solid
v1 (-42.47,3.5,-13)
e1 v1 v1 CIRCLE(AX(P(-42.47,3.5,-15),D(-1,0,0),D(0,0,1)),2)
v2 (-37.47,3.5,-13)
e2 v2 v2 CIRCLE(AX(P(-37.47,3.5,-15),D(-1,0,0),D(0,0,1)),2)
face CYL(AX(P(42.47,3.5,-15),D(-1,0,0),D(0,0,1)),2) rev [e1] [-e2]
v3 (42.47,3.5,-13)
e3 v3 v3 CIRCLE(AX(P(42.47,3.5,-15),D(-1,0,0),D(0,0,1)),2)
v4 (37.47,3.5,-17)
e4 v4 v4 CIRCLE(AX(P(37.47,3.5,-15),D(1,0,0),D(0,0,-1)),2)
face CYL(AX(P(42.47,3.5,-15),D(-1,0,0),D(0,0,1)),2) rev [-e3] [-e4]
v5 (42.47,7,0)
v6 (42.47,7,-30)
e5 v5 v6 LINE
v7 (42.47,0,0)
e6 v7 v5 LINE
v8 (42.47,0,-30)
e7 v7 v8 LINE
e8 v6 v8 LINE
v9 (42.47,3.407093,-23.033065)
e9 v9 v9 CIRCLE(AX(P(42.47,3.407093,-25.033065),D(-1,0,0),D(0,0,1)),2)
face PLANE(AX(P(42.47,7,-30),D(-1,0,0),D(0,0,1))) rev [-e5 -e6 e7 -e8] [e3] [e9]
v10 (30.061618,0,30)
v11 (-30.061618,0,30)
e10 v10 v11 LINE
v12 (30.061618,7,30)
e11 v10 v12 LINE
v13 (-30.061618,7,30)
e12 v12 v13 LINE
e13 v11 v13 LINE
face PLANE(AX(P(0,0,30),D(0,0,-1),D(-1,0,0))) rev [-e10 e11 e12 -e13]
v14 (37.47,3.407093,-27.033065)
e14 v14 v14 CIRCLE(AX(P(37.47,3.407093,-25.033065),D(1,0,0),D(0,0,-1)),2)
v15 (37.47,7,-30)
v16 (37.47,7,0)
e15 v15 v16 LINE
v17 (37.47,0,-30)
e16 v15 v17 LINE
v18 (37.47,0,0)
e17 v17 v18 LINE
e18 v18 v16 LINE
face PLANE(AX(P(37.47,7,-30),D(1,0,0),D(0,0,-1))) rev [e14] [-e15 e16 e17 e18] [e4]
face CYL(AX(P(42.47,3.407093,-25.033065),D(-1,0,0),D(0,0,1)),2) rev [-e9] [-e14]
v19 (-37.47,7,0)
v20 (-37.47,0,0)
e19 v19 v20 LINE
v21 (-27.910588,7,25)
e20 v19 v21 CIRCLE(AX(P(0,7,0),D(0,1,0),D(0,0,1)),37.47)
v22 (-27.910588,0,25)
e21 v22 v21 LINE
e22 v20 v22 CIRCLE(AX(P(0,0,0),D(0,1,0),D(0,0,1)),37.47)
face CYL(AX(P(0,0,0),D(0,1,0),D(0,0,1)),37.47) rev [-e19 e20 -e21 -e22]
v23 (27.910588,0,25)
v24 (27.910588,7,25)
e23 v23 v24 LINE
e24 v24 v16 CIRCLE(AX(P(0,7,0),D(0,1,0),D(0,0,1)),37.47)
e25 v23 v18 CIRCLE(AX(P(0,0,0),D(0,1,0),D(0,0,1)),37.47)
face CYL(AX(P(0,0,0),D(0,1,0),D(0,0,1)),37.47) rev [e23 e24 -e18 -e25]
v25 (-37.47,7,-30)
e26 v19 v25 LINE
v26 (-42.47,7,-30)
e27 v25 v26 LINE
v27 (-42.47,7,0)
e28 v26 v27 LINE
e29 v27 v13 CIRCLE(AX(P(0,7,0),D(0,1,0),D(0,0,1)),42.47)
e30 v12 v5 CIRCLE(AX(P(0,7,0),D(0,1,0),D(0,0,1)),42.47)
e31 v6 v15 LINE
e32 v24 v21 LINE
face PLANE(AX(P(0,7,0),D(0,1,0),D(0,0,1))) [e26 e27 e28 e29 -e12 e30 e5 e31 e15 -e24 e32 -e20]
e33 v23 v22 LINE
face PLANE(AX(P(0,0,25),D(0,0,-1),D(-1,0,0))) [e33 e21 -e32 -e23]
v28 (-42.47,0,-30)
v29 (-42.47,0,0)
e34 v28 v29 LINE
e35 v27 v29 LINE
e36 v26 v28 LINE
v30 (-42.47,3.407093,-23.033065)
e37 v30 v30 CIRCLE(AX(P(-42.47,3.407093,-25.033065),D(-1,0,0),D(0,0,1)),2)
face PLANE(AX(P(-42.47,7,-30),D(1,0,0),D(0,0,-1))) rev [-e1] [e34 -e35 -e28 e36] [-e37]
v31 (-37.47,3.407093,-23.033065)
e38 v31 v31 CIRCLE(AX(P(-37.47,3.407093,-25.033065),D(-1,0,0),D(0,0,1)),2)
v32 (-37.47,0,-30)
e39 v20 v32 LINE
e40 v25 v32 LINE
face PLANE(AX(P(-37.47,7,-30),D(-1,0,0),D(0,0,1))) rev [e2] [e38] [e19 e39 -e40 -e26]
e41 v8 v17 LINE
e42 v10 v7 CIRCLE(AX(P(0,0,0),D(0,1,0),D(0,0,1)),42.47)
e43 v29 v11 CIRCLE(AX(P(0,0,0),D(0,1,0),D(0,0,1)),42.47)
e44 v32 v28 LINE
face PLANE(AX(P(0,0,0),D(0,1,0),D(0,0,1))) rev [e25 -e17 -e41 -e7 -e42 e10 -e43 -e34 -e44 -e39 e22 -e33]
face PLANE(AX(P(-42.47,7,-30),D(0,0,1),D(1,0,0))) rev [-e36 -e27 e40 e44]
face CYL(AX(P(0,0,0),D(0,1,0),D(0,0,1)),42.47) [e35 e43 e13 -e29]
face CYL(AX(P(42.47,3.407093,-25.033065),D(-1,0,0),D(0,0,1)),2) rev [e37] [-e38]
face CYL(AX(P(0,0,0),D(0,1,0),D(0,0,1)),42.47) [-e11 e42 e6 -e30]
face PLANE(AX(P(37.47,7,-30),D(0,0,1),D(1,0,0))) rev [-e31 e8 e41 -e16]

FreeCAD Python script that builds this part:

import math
import FreeCAD as App
import Part
import Sketcher

doc = App.newDocument("Part")
body = doc.addObject("PartDesign::Body", "Body")

sketch1 = body.newObject("Sketcher::SketchObject", "Sketch")
sketch1.AttachmentSupport = (doc.getObject("XZ_Plane"), [""])
sketch1.MapMode = "FlatFace"
sketch1.addGeometry([
    Part.LineSegment(App.Vector(-42, -30, 0), App.Vector(-42, 0, 0)),
    Part.LineSegment(App.Vector(-42, 0, 0), App.Vector(-37, 0, 0)),
    Part.LineSegment(App.Vector(-37, 0, 0), App.Vector(-37, -30, 0)),
    Part.LineSegment(App.Vector(-37, -30, 0), App.Vector(-42, -30, 0)),
], False)
sketch1.addConstraint([
    Sketcher.Constraint("Coincident", 0, 2, 1, 1),
    Sketcher.Constraint("Coincident", 1, 2, 2, 1),
    Sketcher.Constraint("Coincident", 2, 2, 3, 1),
    Sketcher.Constraint("Coincident", 3, 2, 0, 1),
    Sketcher.Constraint("Vertical", 0),
    Sketcher.Constraint("Horizontal", 1),
    Sketcher.Constraint("Vertical", 2),
    Sketcher.Constraint("Horizontal", 3),
    Sketcher.Constraint("PointOnObject", 0, 2, -1),
    Sketcher.Constraint("DistanceX", 1, 1, 1, 2, 5.0),
    Sketcher.Constraint("DistanceY", 0, 1, 0, 2, 30.0),
    Sketcher.Constraint("DistanceX", 0, 2, -1, 1, 42.47),
])
pad1 = body.newObject("PartDesign::Pad", "Pad")
pad1.Profile = sketch1
pad1.Length = 7
pad1.Reversed = True
body2 = doc.addObject("PartDesign::Body", "Body001")

sketch2 = body2.newObject("Sketcher::SketchObject", "Sketch001")
sketch2.AttachmentSupport = (doc.getObject("XZ_Plane001"), [""])
sketch2.MapMode = "FlatFace"
sketch2.addGeometry([
    Part.LineSegment(App.Vector(37, -30, 0), App.Vector(37, 0, 0)),
    Part.LineSegment(App.Vector(37, 0, 0), App.Vector(42, 0, 0)),
    Part.LineSegment(App.Vector(42, 0, 0), App.Vector(42, -30, 0)),
    Part.LineSegment(App.Vector(42, -30, 0), App.Vector(37, -30, 0)),
], False)
sketch2.addConstraint([
    Sketcher.Constraint("Coincident", 0, 2, 1, 1),
    Sketcher.Constraint("Coincident", 1, 2, 2, 1),
    Sketcher.Constraint("Coincident", 2, 2, 3, 1),
    Sketcher.Constraint("Coincident", 3, 2, 0, 1),
    Sketcher.Constraint("Vertical", 0),
    Sketcher.Constraint("Horizontal", 1),
    Sketcher.Constraint("Vertical", 2),
    Sketcher.Constraint("Horizontal", 3),
    Sketcher.Constraint("PointOnObject", 0, 2, -1),
    Sketcher.Constraint("DistanceX", 1, 1, 1, 2, 5.0),
    Sketcher.Constraint("DistanceY", 0, 1, 0, 2, 30.0),
    Sketcher.Constraint("DistanceX", -1, 1, 0, 2, 37.47),
])
pad2 = body2.newObject("PartDesign::Pad", "Pad001")
pad2.Profile = sketch2
pad2.Length = 7
pad2.Reversed = True
body3 = doc.addObject("PartDesign::Body", "Body002")
body3.AllowCompound = True

sketch3 = body3.newObject("Sketcher::SketchObject", "Sketch002")
sketch3.AttachmentSupport = (doc.getObject("YZ_Plane002"), [""])
sketch3.MapMode = "FlatFace"
sketch3.AttachmentOffset = App.Placement(App.Vector(0, 0, -42.47), App.Rotation())
sketch3.addGeometry([
    Part.Circle(App.Vector(3.5, -15, 0), App.Vector(0, 0, 1), 2),
    Part.Circle(App.Vector(3.4, -25, 0), App.Vector(0, 0, 1), 2),
], False)
sketch3.addConstraint([
    Sketcher.Constraint("Equal", 0, 1),
    Sketcher.Constraint("Diameter", 0, 4.0),
    Sketcher.Constraint("DistanceY", 0, 3, -1, 1, 15.0),
    Sketcher.Constraint("DistanceX", -1, 1, 0, 3, 3.5),
    Sketcher.Constraint("DistanceX", -1, 1, 1, 3, 3.407093),
    Sketcher.Constraint("DistanceY", 1, 3, -1, 1, 25.033065),
])
pad3 = body3.newObject("PartDesign::Pad", "Pad002")
pad3.Profile = sketch3
pad3.Length = 91.353769
doc.recompute()

body4 = doc.addObject("PartDesign::Body", "Body003")
body4.BaseFeature = body3
boolean = body.newObject("PartDesign::Boolean", "Boolean")
boolean.Type = "Cut"
boolean.addObjects([body4])
doc.recompute()

boolean2 = body2.newObject("PartDesign::Boolean", "Boolean001")
boolean2.Type = "Cut"
boolean2.addObjects([body3])
body.AllowCompound = True
doc.recompute()

boolean3 = body.newObject("PartDesign::Boolean", "Boolean002")
boolean3.Type = "Fuse"
boolean3.addObjects([body2])

sketch4 = body.newObject("Sketcher::SketchObject", "Sketch003")
sketch4.AttachmentSupport = (doc.getObject("XZ_Plane"), [""])
sketch4.MapMode = "FlatFace"
sketch4.AttachmentOffset = App.Placement(App.Vector(0, 0, -7), App.Rotation())
sketch4.addGeometry([
    Part.LineSegment(App.Vector(28, 25, 0), App.Vector(-28, 25, 0)),
    Part.ArcOfCircle(Part.Circle(App.Vector(0, 0, 0), App.Vector(0, 0, 1), 37), math.radians(138), math.radians(180)),
    Part.LineSegment(App.Vector(-37, 0, 0), App.Vector(-42, 0, 0)),
    Part.ArcOfCircle(Part.Circle(App.Vector(0, 0, 0), App.Vector(0, 0, 1), 42), math.radians(135), math.radians(180)),
    Part.LineSegment(App.Vector(-30, 30, 0), App.Vector(30, 30, 0)),
    Part.ArcOfCircle(Part.Circle(App.Vector(0, 0, 0), App.Vector(0, 0, 1), 42), math.radians(0), math.radians(45)),
    Part.LineSegment(App.Vector(42, 0, 0), App.Vector(37, 0, 0)),
    Part.ArcOfCircle(Part.Circle(App.Vector(0, 0, 0), App.Vector(0, 0, 1), 37), math.radians(0), math.radians(42)),
], False)
sketch4.addConstraint([
    Sketcher.Constraint("Coincident", 0, 2, 1, 1),
    Sketcher.Constraint("Coincident", 1, 2, 2, 1),
    Sketcher.Constraint("Coincident", 2, 2, 3, 2),
    Sketcher.Constraint("Coincident", 3, 1, 4, 1),
    Sketcher.Constraint("Coincident", 4, 2, 5, 2),
    Sketcher.Constraint("Coincident", 5, 1, 6, 1),
    Sketcher.Constraint("Coincident", 6, 2, 7, 1),
    Sketcher.Constraint("Coincident", 7, 2, 0, 1),
    Sketcher.Constraint("Horizontal", 0),
    Sketcher.Constraint("Horizontal", 2),
    Sketcher.Constraint("Horizontal", 4),
    Sketcher.Constraint("Horizontal", 6),
    Sketcher.Constraint("Coincident", 1, 3, -1, 1),
    Sketcher.Constraint("Coincident", 3, 3, -1, 1),
    Sketcher.Constraint("Coincident", 5, 3, -1, 1),
    Sketcher.Constraint("Coincident", 7, 3, -1, 1),
    Sketcher.Constraint("Equal", 3, 5),
    Sketcher.Constraint("Equal", 1, 7),
    Sketcher.Constraint("PointOnObject", 1, 2, -1),
    Sketcher.Constraint("PointOnObject", 5, 1, -1),
    Sketcher.Constraint("DistanceX", 2, 2, 2, 1, 5.0),
    Sketcher.Constraint("Radius", 1, 37.47),
    Sketcher.Constraint("DistanceY", -1, 1, 0, 2, 25.0),
    Sketcher.Constraint("DistanceY", -1, 1, 3, 1, 30.0),
])
pad4 = body.newObject("PartDesign::Pad", "Pad003")
pad4.Profile = sketch4
pad4.Length = 7

doc.recompute()
